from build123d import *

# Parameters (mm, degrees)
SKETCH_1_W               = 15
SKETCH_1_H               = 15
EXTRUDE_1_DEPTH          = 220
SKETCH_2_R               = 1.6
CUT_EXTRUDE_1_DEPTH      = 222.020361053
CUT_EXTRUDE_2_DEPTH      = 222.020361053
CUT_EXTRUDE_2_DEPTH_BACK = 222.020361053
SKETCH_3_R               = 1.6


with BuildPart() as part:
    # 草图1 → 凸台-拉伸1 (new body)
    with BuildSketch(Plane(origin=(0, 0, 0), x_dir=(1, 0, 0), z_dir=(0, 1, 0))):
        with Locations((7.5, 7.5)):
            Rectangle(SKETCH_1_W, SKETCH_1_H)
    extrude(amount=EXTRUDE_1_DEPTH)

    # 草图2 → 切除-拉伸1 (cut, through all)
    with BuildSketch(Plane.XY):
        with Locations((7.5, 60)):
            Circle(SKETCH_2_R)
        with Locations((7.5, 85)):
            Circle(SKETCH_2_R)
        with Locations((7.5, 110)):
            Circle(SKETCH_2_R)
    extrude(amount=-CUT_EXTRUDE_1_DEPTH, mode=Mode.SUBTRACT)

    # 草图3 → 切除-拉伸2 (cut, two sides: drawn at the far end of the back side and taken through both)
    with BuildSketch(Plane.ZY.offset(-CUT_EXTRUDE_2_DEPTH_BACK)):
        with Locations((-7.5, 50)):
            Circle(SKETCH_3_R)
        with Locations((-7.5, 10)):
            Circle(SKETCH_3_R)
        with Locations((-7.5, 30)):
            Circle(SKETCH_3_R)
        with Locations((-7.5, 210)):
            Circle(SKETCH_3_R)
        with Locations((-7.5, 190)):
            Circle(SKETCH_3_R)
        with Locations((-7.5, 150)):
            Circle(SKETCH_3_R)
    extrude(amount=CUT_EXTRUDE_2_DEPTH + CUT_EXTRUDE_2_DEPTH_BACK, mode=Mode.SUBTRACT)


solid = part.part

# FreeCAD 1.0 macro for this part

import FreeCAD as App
import Part
import Sketcher
Q = App.Units.Quantity


def add_polygon(sketch, points):
    """Adds a closed chain of lines whose ends are joined by coincident constraints."""
    first, n = sketch.GeometryCount, len(points)
    for a, b in zip(points, points[1:] + points[:1]):
        sketch.addGeometry(Part.LineSegment(App.Vector(*a, 0), App.Vector(*b, 0)), False)
    for i in range(n):
        sketch.addConstraint(Sketcher.Constraint("Coincident", first + i, 2, first + (i + 1) % n, 1))

doc = App.newDocument("Part")
body = doc.addObject("PartDesign::Body", "Body")

# Sketch on XZ plane
sketch1 = body.newObject("Sketcher::SketchObject", "Sketch")
sketch1.AttachmentSupport = (doc.getObject("XZ_Plane"), [""])
sketch1.MapMode = "FlatFace"
add_polygon(sketch1, [(0, -15), (0, 0), (15, 0), (15, -15)])  # lines 0-3
sketch1.addConstraint([
    Sketcher.Constraint("Vertical", 0),
    Sketcher.Constraint("Horizontal", 1),
    Sketcher.Constraint("Vertical", 2),
    Sketcher.Constraint("Horizontal", 3),
    Sketcher.Constraint("Coincident", 0, 2, -1, 1),
    Sketcher.Constraint("Equal", 3, 0),
    Sketcher.Constraint("DistanceX", 1, 1, 1, 2, Q("15 mm")),
])
pad1 = body.newObject("PartDesign::Pad", "Pad")
pad1.Profile = sketch1
pad1.Length = 220
pad1.Reversed = True

# Sketch on XY plane
sketch2 = body.newObject("Sketcher::SketchObject", "Sketch001")
sketch2.AttachmentSupport = (doc.getObject("XY_Plane"), [""])
sketch2.MapMode = "FlatFace"
sketch2.addGeometry([
    Part.Circle(App.Vector(7.5, 60, 0), App.Vector(0, 0, 1), 1.6),
    Part.Circle(App.Vector(7.5, 85, 0), App.Vector(0, 0, 1), 1.6),
    Part.Circle(App.Vector(7.5, 110, 0), App.Vector(0, 0, 1), 1.6),
], False)
sketch2.addConstraint([
    Sketcher.Constraint("Equal", 0, 1),
    Sketcher.Constraint("Equal", 1, 2),
    Sketcher.Constraint("Vertical", 0, 3, 1, 3),
    Sketcher.Constraint("Vertical", 1, 3, 2, 3),
    Sketcher.Constraint("Diameter", 0, Q("3.2 mm")),
    Sketcher.Constraint("DistanceY", -1, 1, 0, 3, Q("60 mm")),
    Sketcher.Constraint("DistanceY", -1, 1, 1, 3, Q("85 mm")),
    Sketcher.Constraint("DistanceY", -1, 1, 2, 3, Q("110 mm")),
    Sketcher.Constraint("DistanceX", -1, 1, 0, 3, Q("7.5 mm")),
])
pocket1 = body.newObject("PartDesign::Pocket", "Pocket")
pocket1.Profile = sketch2
pocket1.Type = "ThroughAll"

# Sketch on YZ plane
sketch3 = body.newObject("Sketcher::SketchObject", "Sketch002")
sketch3.AttachmentSupport = (doc.getObject("YZ_Plane"), [""])
sketch3.MapMode = "FlatFace"
sketch3.addGeometry([
    Part.Circle(App.Vector(50, -7.5, 0), App.Vector(0, 0, 1), 1.6),  # 0
    Part.Circle(App.Vector(10, -7.5, 0), App.Vector(0, 0, 1), 1.6),  # 1
    Part.Circle(App.Vector(30, -7.5, 0), App.Vector(0, 0, 1), 1.6),  # 2
    Part.Circle(App.Vector(210, -7.5, 0), App.Vector(0, 0, 1), 1.6),  # 3
    Part.Circle(App.Vector(190, -7.5, 0), App.Vector(0, 0, 1), 1.6),  # 4
    Part.Circle(App.Vector(150, -7.5, 0), App.Vector(0, 0, 1), 1.6),  # 5
], False)
sketch3.addConstraint([
    Sketcher.Constraint("Equal", 0, 1),
    Sketcher.Constraint("Equal", 1, 2),
    Sketcher.Constraint("Equal", 2, 3),
    Sketcher.Constraint("Equal", 3, 4),
    Sketcher.Constraint("Equal", 4, 5),
    Sketcher.Constraint("Horizontal", 0, 3, 1, 3),
    Sketcher.Constraint("Horizontal", 1, 3, 2, 3),
    Sketcher.Constraint("Horizontal", 2, 3, 3, 3),
    Sketcher.Constraint("Horizontal", 3, 3, 4, 3),
    Sketcher.Constraint("Horizontal", 4, 3, 5, 3),
    Sketcher.Constraint("Diameter", 0, Q("3.2 mm")),
    Sketcher.Constraint("DistanceX", -1, 1, 0, 3, Q("50 mm")),
    Sketcher.Constraint("DistanceX", -1, 1, 1, 3, Q("10 mm")),
    Sketcher.Constraint("DistanceX", -1, 1, 2, 3, Q("30 mm")),
    Sketcher.Constraint("DistanceX", -1, 1, 3, 3, Q("210 mm")),
    Sketcher.Constraint("DistanceX", -1, 1, 4, 3, Q("190 mm")),
    Sketcher.Constraint("DistanceX", -1, 1, 5, 3, Q("150 mm")),
    Sketcher.Constraint("DistanceY", 0, 3, -1, 1, Q("7.5 mm")),
])
pocket2 = body.newObject("PartDesign::Pocket", "Pocket001")
pocket2.Profile = sketch3
pocket2.Type = "ThroughAll"
pocket2.Midplane = True

doc.recompute()
